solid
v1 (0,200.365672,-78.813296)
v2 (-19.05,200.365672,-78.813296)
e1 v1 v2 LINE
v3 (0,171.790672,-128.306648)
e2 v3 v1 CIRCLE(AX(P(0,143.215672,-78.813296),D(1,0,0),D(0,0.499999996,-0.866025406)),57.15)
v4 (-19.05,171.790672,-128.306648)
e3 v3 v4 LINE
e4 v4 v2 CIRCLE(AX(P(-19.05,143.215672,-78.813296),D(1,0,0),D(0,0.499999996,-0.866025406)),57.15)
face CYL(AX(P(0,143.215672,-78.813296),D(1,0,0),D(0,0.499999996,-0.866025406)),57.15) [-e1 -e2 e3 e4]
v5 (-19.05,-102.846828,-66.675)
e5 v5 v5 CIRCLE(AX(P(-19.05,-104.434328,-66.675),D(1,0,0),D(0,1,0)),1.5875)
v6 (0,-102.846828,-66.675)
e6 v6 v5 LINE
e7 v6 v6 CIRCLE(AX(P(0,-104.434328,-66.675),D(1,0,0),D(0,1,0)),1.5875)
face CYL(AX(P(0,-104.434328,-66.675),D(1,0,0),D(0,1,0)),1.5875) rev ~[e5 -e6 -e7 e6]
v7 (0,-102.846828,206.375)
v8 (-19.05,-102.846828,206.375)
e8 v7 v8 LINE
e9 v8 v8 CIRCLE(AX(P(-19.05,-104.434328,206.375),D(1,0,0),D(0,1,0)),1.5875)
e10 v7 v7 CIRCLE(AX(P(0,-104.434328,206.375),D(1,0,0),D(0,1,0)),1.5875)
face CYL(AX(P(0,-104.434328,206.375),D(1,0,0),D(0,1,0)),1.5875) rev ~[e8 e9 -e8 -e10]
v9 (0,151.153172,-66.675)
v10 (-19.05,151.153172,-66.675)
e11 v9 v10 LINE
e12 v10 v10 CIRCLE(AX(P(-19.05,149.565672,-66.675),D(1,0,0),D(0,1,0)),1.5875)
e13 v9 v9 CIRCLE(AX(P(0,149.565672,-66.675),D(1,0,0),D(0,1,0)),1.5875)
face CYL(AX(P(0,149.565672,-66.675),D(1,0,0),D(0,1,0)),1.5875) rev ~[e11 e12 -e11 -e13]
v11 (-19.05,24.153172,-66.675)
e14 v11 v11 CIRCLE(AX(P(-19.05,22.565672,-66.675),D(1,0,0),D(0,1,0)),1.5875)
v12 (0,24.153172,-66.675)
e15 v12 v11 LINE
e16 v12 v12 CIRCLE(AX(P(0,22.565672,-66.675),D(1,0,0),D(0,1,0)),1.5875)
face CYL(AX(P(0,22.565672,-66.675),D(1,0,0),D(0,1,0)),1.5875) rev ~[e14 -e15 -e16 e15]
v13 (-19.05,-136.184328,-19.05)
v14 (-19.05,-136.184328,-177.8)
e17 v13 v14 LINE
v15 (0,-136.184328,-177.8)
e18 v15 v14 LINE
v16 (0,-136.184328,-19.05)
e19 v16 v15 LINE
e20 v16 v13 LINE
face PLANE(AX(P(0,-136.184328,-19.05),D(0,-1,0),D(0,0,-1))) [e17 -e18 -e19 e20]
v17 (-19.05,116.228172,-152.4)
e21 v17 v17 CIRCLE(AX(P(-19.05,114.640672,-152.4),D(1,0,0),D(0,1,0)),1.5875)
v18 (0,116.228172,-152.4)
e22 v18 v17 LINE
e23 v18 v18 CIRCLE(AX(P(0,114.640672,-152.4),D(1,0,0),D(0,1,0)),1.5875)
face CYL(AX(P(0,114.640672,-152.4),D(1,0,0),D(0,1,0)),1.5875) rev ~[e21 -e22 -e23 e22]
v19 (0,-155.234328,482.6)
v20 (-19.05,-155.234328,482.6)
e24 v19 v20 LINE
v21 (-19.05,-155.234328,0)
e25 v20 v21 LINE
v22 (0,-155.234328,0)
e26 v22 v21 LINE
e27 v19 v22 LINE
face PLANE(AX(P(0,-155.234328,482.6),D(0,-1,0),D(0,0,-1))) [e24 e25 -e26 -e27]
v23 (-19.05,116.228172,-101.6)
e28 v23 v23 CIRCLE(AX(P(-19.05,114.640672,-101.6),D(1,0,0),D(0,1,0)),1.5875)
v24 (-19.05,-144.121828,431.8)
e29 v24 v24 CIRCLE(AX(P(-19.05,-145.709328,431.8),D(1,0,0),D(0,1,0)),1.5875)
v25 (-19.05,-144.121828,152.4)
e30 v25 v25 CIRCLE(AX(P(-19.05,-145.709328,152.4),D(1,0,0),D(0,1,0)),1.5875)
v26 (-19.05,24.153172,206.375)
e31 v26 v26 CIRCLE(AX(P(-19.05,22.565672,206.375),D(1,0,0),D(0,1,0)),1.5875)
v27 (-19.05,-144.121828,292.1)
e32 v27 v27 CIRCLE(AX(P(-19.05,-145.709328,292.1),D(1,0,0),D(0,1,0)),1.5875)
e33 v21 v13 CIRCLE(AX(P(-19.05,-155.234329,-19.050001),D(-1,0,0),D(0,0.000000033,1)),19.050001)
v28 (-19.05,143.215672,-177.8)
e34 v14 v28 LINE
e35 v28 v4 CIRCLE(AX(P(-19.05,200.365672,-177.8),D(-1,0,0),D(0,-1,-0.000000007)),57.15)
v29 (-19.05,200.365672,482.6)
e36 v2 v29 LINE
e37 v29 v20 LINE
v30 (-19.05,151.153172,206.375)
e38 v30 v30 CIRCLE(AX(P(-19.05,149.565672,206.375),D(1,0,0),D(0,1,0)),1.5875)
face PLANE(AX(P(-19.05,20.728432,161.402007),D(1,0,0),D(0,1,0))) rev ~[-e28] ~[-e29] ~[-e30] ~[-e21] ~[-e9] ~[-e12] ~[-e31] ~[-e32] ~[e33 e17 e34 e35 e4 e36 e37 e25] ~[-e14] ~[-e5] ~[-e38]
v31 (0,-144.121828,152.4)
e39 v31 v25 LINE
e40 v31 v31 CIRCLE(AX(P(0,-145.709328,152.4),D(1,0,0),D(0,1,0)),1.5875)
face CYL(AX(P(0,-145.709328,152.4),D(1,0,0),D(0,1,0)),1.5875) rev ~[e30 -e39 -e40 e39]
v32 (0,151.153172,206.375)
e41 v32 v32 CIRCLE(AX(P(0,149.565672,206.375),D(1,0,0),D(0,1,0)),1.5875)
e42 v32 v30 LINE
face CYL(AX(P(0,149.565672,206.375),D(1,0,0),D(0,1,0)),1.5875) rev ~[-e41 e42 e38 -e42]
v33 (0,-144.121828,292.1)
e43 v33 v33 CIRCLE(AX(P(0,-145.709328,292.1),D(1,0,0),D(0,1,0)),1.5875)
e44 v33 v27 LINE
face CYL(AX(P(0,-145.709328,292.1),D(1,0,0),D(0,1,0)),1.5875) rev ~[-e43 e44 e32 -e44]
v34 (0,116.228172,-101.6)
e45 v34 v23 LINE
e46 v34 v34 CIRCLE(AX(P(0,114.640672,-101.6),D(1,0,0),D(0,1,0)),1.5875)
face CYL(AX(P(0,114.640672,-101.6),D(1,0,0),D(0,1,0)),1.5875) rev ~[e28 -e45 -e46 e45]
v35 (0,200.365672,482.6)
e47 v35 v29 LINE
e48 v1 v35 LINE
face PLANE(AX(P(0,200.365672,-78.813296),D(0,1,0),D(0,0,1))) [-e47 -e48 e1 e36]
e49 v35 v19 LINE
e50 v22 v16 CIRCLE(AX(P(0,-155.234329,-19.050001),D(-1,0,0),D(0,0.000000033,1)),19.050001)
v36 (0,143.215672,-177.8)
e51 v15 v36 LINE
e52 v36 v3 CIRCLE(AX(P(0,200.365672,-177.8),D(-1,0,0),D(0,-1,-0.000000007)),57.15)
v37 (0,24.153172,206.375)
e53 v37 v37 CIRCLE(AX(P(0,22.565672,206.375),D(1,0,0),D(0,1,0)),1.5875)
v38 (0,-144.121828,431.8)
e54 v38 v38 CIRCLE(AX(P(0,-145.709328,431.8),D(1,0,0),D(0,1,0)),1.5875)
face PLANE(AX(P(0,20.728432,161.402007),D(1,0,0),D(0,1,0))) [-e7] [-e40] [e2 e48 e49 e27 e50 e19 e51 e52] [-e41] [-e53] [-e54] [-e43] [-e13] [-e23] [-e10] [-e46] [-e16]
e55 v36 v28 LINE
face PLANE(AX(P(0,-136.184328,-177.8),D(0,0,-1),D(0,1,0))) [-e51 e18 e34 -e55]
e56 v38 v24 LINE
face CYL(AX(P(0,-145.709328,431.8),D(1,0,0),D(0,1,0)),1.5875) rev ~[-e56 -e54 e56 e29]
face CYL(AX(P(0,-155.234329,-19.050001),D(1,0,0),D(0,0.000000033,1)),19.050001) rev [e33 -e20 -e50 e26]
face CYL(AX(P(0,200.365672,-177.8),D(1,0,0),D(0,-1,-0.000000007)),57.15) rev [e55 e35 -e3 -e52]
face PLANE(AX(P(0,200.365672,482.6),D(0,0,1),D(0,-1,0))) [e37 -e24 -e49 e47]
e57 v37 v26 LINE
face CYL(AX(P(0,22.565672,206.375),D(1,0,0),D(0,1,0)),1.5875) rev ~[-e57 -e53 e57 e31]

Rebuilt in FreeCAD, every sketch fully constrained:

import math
import FreeCAD as App
import Part
import Sketcher
from FreeCAD import Vector
Q = App.Units.Quantity

doc = App.newDocument("Part")
params = doc.addObject("Spreadsheet::Sheet", "Params")
for row, (alias, value) in enumerate([
    ("sketch1_width", "14 in"),
    ("sketch1_width2", "11 in"),
    ("sketch1_height", "19 in"),
    ("sketch1_radius", "0.75 in"),
    ("sketch1_diameter", "0.125 in"),
    ("pad1_length", "0.75 in"),
], start=1):
    params.set(f"A{row}", alias)
    params.set(f"B{row}", "=" + value)
    params.setAlias(f"B{row}", alias)

body = doc.addObject("PartDesign::Body", "Body")

sketch1 = body.newObject("Sketcher::SketchObject", "Sketch")
sketch1.AttachmentSupport = (doc.getObject("YZ_Plane"), [""])
sketch1.MapMode = "FlatFace"
sketch1.addGeometry([
    Part.LineSegment(Vector(200.4, 482.6, 0), Vector(-155.2, 482.6, 0)),
    Part.LineSegment(Vector(-155.2, 482.6, 0), Vector(-155.2, 0, 0)),
    Part.ArcOfCircle(Part.Circle(Vector(-155.2, -19.1, 0), Vector(0, 0, 1), 19.1), math.radians(0), math.radians(90)),
    Part.LineSegment(Vector(-136.2, -19.1, 0), Vector(-136.2, -177.8, 0)),
    Part.LineSegment(Vector(-136.2, -177.8, 0), Vector(143.2, -177.8, 0)),
    Part.ArcOfCircle(Part.Circle(Vector(200.4, -177.8, 0), Vector(0, 0, 1), 57.1), math.radians(120), math.radians(180)),
    Part.ArcOfCircle(Part.Circle(Vector(143.2, -78.8, 0), Vector(0, 0, 1), 57.1), math.radians(-60), math.radians(0)),
    Part.LineSegment(Vector(200.4, -78.8, 0), Vector(200.4, 482.6, 0)),
    Part.Circle(Vector(-104.4, -66.7, 0), Vector(0, 0, 1), 1.6),
    Part.Circle(Vector(22.6, -66.7, 0), Vector(0, 0, 1), 1.6),
    Part.Circle(Vector(114.6, -152.4, 0), Vector(0, 0, 1), 1.6),
    Part.Circle(Vector(114.6, -101.6, 0), Vector(0, 0, 1), 1.6),
    Part.Circle(Vector(149.6, -66.7, 0), Vector(0, 0, 1), 1.6),
    Part.Circle(Vector(-145.7, 152.4, 0), Vector(0, 0, 1), 1.6),
    Part.Circle(Vector(-104.4, 206.4, 0), Vector(0, 0, 1), 1.6),
    Part.Circle(Vector(-145.7, 292.1, 0), Vector(0, 0, 1), 1.6),
    Part.Circle(Vector(-145.7, 431.8, 0), Vector(0, 0, 1), 1.6),
    Part.Circle(Vector(22.6, 206.4, 0), Vector(0, 0, 1), 1.6),
    Part.Circle(Vector(149.6, 206.4, 0), Vector(0, 0, 1), 1.6),
], False)
sketch1.addConstraint([
    Sketcher.Constraint("Coincident", 0, 2, 1, 1),
    Sketcher.Constraint("Coincident", 1, 2, 2, 2),
    Sketcher.Constraint("Tangent", 2, 1, 3, 1),
    Sketcher.Constraint("Coincident", 3, 2, 4, 1),
    Sketcher.Constraint("Coincident", 4, 2, 5, 2),
    Sketcher.Constraint("Tangent", 5, 1, 6, 1),
    Sketcher.Constraint("Tangent", 6, 2, 7, 1),
    Sketcher.Constraint("Coincident", 7, 2, 0, 1),
    Sketcher.Constraint("Horizontal", 0),
    Sketcher.Constraint("Vertical", 1),
    Sketcher.Constraint("Vertical", 3),
    Sketcher.Constraint("Horizontal", 4),
    Sketcher.Constraint("Vertical", 7),
    Sketcher.Constraint("Equal", 5, 6),
    Sketcher.Constraint("Equal", 8, 9),
    Sketcher.Constraint("Equal", 9, 10),
    Sketcher.Constraint("Equal", 10, 11),
    Sketcher.Constraint("Equal", 11, 12),
    Sketcher.Constraint("Equal", 12, 13),
    Sketcher.Constraint("Equal", 13, 14),
    Sketcher.Constraint("Equal", 14, 15),
    Sketcher.Constraint("Equal", 15, 16),
    Sketcher.Constraint("Equal", 16, 17),
    Sketcher.Constraint("Equal", 17, 18),
    Sketcher.Constraint("PointOnObject", 1, 2, -1),
    Sketcher.Constraint("Horizontal", 8, 3, 9, 3),
    Sketcher.Constraint("Horizontal", 9, 3, 12, 3),
    Sketcher.Constraint("Horizontal", 14, 3, 17, 3),
    Sketcher.Constraint("Horizontal", 17, 3, 18, 3),
    Sketcher.Constraint("Horizontal", 5, 3, 3, 2),
    Sketcher.Constraint("Vertical", 10, 3, 11, 3),
    Sketcher.Constraint("Vertical", 8, 3, 14, 3),
    Sketcher.Constraint("Vertical", 13, 3, 15, 3),
    Sketcher.Constraint("Vertical", 15, 3, 16, 3),
    Sketcher.Constraint("Vertical", 9, 3, 17, 3),
    Sketcher.Constraint("Vertical", 12, 3, 18, 3),
    Sketcher.Constraint("Vertical", 2, 3, 0, 2),
    Sketcher.Constraint("Vertical", 6, 3, 4, 2),
    Sketcher.Constraint("DistanceX", 0, 2, 0, 1, Q("14 in")),
    Sketcher.Constraint("DistanceX", 4, 1, 4, 2, Q("11 in")),
    Sketcher.Constraint("DistanceY", 1, 2, 1, 1, Q("19 in")),
    Sketcher.Constraint("Radius", 2, Q("0.75 in")),
    Sketcher.Constraint("Diameter", 8, Q("0.125 in")),
    Sketcher.Constraint("DistanceY", 5, 3, -1, 1, Q("7 in")),
    Sketcher.Constraint("DistanceY", 10, 3, -1, 1, Q("6 in")),
    Sketcher.Constraint("DistanceY", 11, 3, -1, 1, Q("4 in")),
    Sketcher.Constraint("DistanceY", -1, 1, 13, 3, Q("6 in")),
    Sketcher.Constraint("DistanceY", -1, 1, 16, 3, Q("17 in")),
    Sketcher.Constraint("DistanceX", 2, 3, 8, 3, Q("2 in")),
    Sketcher.Constraint("DistanceX", 8, 3, 9, 3, Q("5 in")),
    Sketcher.Constraint("DistanceX", 12, 3, 5, 3, Q("2 in")),
    Sketcher.Constraint("DistanceY", -1, 1, 15, 3, Q("11.5 in")),
    Sketcher.Constraint("DistanceX", 13, 3, 11, 3, Q("10.25 in")),
    Sketcher.Constraint("DistanceY", 8, 3, 14, 3, Q("10.75 in")),
    Sketcher.Constraint("DistanceX", 10, 3, 5, 1, Q("2.25 in")),
    Sketcher.Constraint("DistanceY", 8, 3, -1, 1, Q("2.625 in")),
    Sketcher.Constraint("DistanceX", 2, 3, -1, 1, 155.234329),
])
sketch1.setExpression("Constraints[38]", "Params.sketch1_width")
sketch1.setExpression("Constraints[39]", "Params.sketch1_width2")
sketch1.setExpression("Constraints[40]", "Params.sketch1_height")
sketch1.setExpression("Constraints[41]", "Params.sketch1_radius")
sketch1.setExpression("Constraints[42]", "Params.sketch1_diameter")
pad1 = body.newObject("PartDesign::Pad", "Pad")
pad1.Profile = sketch1
pad1.setExpression("Length", "Params.pad1_length")
pad1.Reversed = True

doc.recompute()
